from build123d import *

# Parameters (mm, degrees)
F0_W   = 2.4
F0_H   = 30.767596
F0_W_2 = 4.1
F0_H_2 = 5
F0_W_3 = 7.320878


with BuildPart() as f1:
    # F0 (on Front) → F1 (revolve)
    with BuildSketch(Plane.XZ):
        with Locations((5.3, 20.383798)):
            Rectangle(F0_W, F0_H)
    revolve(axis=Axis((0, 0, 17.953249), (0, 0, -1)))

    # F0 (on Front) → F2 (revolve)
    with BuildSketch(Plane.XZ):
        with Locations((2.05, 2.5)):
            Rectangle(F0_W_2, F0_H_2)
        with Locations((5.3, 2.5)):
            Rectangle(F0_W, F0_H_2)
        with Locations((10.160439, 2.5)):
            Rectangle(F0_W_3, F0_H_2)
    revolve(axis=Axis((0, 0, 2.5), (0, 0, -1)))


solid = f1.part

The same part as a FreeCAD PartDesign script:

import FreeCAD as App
import Part
import Sketcher

V = App.Vector
Q = App.Units.Quantity

doc = App.newDocument("Part")
body = doc.addObject("PartDesign::Body", "Body")

# Sketch on XZ plane
sketch1 = body.newObject("Sketcher::SketchObject", "Sketch")
sketch1.AttachmentSupport = (doc.getObject("XZ_Plane"), [""])
sketch1.MapMode = "FlatFace"
sketch1.addGeometry([
    Part.LineSegment(V(4.1, 35.8, 0), V(4.1, 5, 0)),
    Part.LineSegment(V(4.1, 5, 0), V(6.5, 5, 0)),
    Part.LineSegment(V(6.5, 5, 0), V(6.5, 35.8, 0)),
    Part.LineSegment(V(6.5, 35.8, 0), V(4.1, 35.8, 0)),
], False)
sketch1.addConstraint([
    Sketcher.Constraint("Coincident", 0, 2, 1, 1),
    Sketcher.Constraint("Coincident", 1, 2, 2, 1),
    Sketcher.Constraint("Coincident", 2, 2, 3, 1),
    Sketcher.Constraint("Coincident", 3, 2, 0, 1),
    Sketcher.Constraint("Vertical", 0),
    Sketcher.Constraint("Horizontal", 1),
    Sketcher.Constraint("Vertical", 2),
    Sketcher.Constraint("Horizontal", 3),
    Sketcher.Constraint("DistanceX", 1, 1, 1, 2, Q("2.4 mm")),
    Sketcher.Constraint("DistanceY", -1, 1, 0, 2, Q("5 mm")),
    Sketcher.Constraint("DistanceX", -1, 1, 0, 2, Q("4.1 mm")),
    Sketcher.Constraint("DistanceY", 0, 2, 0, 1, Q("30.767596 mm")),
])
revolution = body.newObject("PartDesign::Revolution", "Revolution")
revolution.Profile = sketch1
revolution.ReferenceAxis = (sketch1, ["V_Axis"])
revolution.Angle = 360

# Sketch on XZ plane
sketch2 = body.newObject("Sketcher::SketchObject", "Sketch001")
sketch2.AttachmentSupport = (doc.getObject("XZ_Plane"), [""])
sketch2.MapMode = "FlatFace"
sketch2.addGeometry([
    Part.LineSegment(V(0, 5, 0), V(0, 0, 0)),
    Part.LineSegment(V(0, 0, 0), V(14, 0, 0)),
    Part.LineSegment(V(14, 0, 0), V(14, 5, 0)),
    Part.LineSegment(V(14, 5, 0), V(0, 5, 0)),
], False)
sketch2.addConstraint([
    Sketcher.Constraint("Coincident", 0, 2, 1, 1),
    Sketcher.Constraint("Coincident", 1, 2, 2, 1),
    Sketcher.Constraint("Coincident", 2, 2, 3, 1),
    Sketcher.Constraint("Coincident", 3, 2, 0, 1),
    Sketcher.Constraint("Vertical", 0),
    Sketcher.Constraint("Horizontal", 1),
    Sketcher.Constraint("Vertical", 2),
    Sketcher.Constraint("Horizontal", 3),
    Sketcher.Constraint("Coincident", 0, 2, -1, 1),
    Sketcher.Constraint("DistanceY", 0, 2, 0, 1, Q("5 mm")),
    Sketcher.Constraint("DistanceX", 1, 1, 1, 2, Q("13.820878 mm")),
])
revolution2 = body.newObject("PartDesign::Revolution", "Revolution001")
revolution2.Profile = sketch2
revolution2.ReferenceAxis = (sketch2, ["V_Axis"])
revolution2.Angle = 360

doc.recompute()
